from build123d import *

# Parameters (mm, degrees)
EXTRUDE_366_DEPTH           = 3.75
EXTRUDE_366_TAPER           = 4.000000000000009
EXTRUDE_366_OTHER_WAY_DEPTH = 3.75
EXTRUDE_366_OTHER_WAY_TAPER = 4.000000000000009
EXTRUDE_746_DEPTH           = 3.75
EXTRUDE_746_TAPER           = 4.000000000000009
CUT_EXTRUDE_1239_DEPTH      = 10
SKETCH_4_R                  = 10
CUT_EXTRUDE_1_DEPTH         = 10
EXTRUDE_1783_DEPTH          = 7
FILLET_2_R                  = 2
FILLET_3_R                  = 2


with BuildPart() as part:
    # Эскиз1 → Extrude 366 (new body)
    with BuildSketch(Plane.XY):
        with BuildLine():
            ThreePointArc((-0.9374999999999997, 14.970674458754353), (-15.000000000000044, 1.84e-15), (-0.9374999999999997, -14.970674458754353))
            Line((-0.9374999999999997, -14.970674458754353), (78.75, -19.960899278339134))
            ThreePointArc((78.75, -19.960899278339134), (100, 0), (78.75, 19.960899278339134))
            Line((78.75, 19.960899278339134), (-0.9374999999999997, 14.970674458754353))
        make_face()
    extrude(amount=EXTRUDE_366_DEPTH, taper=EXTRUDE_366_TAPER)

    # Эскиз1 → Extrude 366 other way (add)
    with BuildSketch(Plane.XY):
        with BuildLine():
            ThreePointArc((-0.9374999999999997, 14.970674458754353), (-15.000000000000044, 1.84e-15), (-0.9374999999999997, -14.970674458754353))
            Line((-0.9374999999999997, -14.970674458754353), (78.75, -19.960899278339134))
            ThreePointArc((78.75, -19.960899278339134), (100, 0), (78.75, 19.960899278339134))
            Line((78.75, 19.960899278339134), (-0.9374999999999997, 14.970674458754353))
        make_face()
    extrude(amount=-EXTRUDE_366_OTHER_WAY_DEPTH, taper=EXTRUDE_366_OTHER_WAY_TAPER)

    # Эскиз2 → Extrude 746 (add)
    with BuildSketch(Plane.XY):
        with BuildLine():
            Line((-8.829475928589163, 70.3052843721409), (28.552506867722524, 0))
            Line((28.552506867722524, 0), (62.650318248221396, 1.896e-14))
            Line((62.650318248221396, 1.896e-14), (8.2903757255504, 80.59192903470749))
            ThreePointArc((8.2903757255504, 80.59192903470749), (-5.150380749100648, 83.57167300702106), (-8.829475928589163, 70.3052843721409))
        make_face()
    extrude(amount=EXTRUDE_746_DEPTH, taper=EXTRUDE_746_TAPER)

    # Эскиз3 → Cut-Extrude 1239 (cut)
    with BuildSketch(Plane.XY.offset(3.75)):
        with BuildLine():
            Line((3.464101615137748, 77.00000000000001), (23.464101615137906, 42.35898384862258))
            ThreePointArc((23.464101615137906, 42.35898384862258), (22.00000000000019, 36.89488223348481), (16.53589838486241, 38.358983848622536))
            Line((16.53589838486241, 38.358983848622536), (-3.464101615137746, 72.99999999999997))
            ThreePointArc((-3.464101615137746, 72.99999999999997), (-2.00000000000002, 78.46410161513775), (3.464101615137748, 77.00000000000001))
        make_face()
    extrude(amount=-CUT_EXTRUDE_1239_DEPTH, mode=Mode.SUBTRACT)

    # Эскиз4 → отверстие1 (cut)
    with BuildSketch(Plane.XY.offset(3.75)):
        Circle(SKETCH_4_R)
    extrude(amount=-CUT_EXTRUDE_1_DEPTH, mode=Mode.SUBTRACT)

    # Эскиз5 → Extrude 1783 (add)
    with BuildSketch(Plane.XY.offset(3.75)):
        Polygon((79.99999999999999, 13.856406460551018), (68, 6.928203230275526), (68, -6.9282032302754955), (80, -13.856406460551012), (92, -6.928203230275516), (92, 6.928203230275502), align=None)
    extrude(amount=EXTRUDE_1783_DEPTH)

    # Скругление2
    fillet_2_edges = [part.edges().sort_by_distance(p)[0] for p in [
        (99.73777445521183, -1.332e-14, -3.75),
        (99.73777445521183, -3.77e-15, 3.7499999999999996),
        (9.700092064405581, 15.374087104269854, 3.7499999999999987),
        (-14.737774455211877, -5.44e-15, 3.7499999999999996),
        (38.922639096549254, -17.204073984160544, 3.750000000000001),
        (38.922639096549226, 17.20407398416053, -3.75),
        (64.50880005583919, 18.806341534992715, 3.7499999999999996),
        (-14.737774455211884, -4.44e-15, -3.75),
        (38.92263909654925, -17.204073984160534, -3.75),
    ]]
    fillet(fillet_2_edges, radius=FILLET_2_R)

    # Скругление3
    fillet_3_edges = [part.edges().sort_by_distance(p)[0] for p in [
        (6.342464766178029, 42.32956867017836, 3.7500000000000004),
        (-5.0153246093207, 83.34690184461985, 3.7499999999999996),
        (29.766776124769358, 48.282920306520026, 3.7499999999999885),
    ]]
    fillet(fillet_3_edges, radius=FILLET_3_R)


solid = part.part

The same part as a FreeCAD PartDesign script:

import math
import FreeCAD as App
import Part
import Sketcher
from FreeCAD import Vector
Q = App.Units.Quantity


def edges_at(feature, points):
    """Names of the edges that pass closest to the given points."""
    edges = feature.Shape.Edges
    near = lambda p: min(range(len(edges)), key=lambda i: edges[i].distToShape(Part.Vertex(*p))[0])
    return sorted({f"Edge{near(p) + 1}" for p in points})

doc = App.newDocument("Part")
body = doc.addObject("PartDesign::Body", "Body")

sketch1 = body.newObject("Sketcher::SketchObject", "Sketch")
sketch1.AttachmentSupport = (doc.getObject("XY_Plane"), [""])
sketch1.MapMode = "FlatFace"
sketch1.addGeometry([
    Part.ArcOfCircle(Part.Circle(Vector(0, 0, 0), Vector(0, 0, 1), 15), math.radians(94), math.radians(266)),
    Part.LineSegment(Vector(-1, -15, 0), Vector(79, -20, 0)),
    Part.ArcOfCircle(Part.Circle(Vector(80, 0, 0), Vector(0, 0, 1), 20), math.radians(-94), math.radians(94)),
    Part.LineSegment(Vector(79, 20, 0), Vector(-1, 15, 0)),
], False)
sketch1.addConstraint([
    Sketcher.Constraint("Tangent", 0, 2, 1, 1),
    Sketcher.Constraint("Tangent", 1, 2, 2, 1),
    Sketcher.Constraint("Tangent", 2, 2, 3, 1),
    Sketcher.Constraint("Tangent", 3, 2, 0, 1),
    Sketcher.Constraint("Coincident", 0, 3, -1, 1),
    Sketcher.Constraint("PointOnObject", 2, 3, -1),
    Sketcher.Constraint("Radius", 0, 15.0),
    Sketcher.Constraint("Radius", 2, 20.0),
    Sketcher.Constraint("DistanceX", -1, 1, 2, 3, 80.0),
])
pad1 = body.newObject("PartDesign::Pad", "Pad")
pad1.Profile = sketch1
pad1.Length = 3.75
pad1.TaperAngle = -4

sketch2 = body.newObject("Sketcher::SketchObject", "Sketch001")
sketch2.AttachmentSupport = (doc.getObject("XY_Plane"), [""])
sketch2.MapMode = "FlatFace"
sketch2.addGeometry([
    Part.ArcOfCircle(Part.Circle(Vector(0, 0, 0), Vector(0, 0, 1), 15), math.radians(94), math.radians(266)),
    Part.LineSegment(Vector(-1, -15, 0), Vector(79, -20, 0)),
    Part.ArcOfCircle(Part.Circle(Vector(80, 0, 0), Vector(0, 0, 1), 20), math.radians(-94), math.radians(94)),
    Part.LineSegment(Vector(79, 20, 0), Vector(-1, 15, 0)),
], False)
sketch2.addConstraint([
    Sketcher.Constraint("Tangent", 0, 2, 1, 1),
    Sketcher.Constraint("Tangent", 1, 2, 2, 1),
    Sketcher.Constraint("Tangent", 2, 2, 3, 1),
    Sketcher.Constraint("Tangent", 3, 2, 0, 1),
    Sketcher.Constraint("Coincident", 0, 3, -1, 1),
    Sketcher.Constraint("PointOnObject", 2, 3, -1),
    Sketcher.Constraint("Radius", 0, 15.0),
    Sketcher.Constraint("Radius", 2, 20.0),
    Sketcher.Constraint("DistanceX", -1, 1, 2, 3, 80.0),
])
pad2 = body.newObject("PartDesign::Pad", "Pad001")
pad2.Profile = sketch2
pad2.Length = 3.75
pad2.Reversed = True
pad2.TaperAngle = -4

sketch3 = body.newObject("Sketcher::SketchObject", "Sketch002")
sketch3.AttachmentSupport = (doc.getObject("XY_Plane"), [""])
sketch3.MapMode = "FlatFace"
sketch3.addGeometry([
    Part.LineSegment(Vector(-9, 70, 0), Vector(29, 0, 0)),
    Part.LineSegment(Vector(29, 0, 0), Vector(63, 0, 0)),
    Part.LineSegment(Vector(63, 0, 0), Vector(8, 81, 0)),
    Part.ArcOfCircle(Part.Circle(Vector(0, 75, 0), Vector(0, 0, 1), 10), math.radians(34), math.radians(208)),
], False)
sketch3.addConstraint([
    Sketcher.Constraint("Coincident", 0, 2, 1, 1),
    Sketcher.Constraint("Coincident", 1, 2, 2, 1),
    Sketcher.Constraint("Tangent", 2, 2, 3, 1),
    Sketcher.Constraint("Tangent", 3, 2, 0, 1),
    Sketcher.Constraint("Horizontal", 1),
    Sketcher.Constraint("PointOnObject", 3, 3, -2),
    Sketcher.Constraint("PointOnObject", 0, 2, -1),
    Sketcher.Constraint("Radius", 3, 10.0),
    Sketcher.Constraint("Angle", 0, Q("-62 deg")),
    Sketcher.Constraint("Angle", 2, Q("124 deg")),
    Sketcher.Constraint("DistanceY", -1, 1, 3, 3, 75.0),
])
pad3 = body.newObject("PartDesign::Pad", "Pad002")
pad3.Profile = sketch3
pad3.Length = 3.75
pad3.TaperAngle = -4

sketch4 = body.newObject("Sketcher::SketchObject", "Sketch003")
sketch4.AttachmentSupport = (doc.getObject("XY_Plane"), [""])
sketch4.MapMode = "FlatFace"
sketch4.AttachmentOffset = App.Placement(Vector(0, 0, 3.75), App.Rotation())
sketch4.addGeometry([
    Part.LineSegment(Vector(23.5, 42.4, 0), Vector(3.5, 77, 0)),
    Part.ArcOfCircle(Part.Circle(Vector(0, 75, 0), Vector(0, 0, 1), 4), math.radians(30), math.radians(210)),
    Part.LineSegment(Vector(-3.5, 73, 0), Vector(16.5, 38.4, 0)),
    Part.ArcOfCircle(Part.Circle(Vector(20, 40.4, 0), Vector(0, 0, 1), 4), math.radians(-150), math.radians(30)),
], False)
sketch4.addConstraint([
    Sketcher.Constraint("Tangent", 0, 2, 1, 1),
    Sketcher.Constraint("Tangent", 1, 2, 2, 1),
    Sketcher.Constraint("Tangent", 2, 2, 3, 1),
    Sketcher.Constraint("Tangent", 3, 2, 0, 1),
    Sketcher.Constraint("Equal", 1, 3),
    Sketcher.Constraint("PointOnObject", 1, 3, -2),
    Sketcher.Constraint("Radius", 1, 4.0),
    Sketcher.Constraint("Angle", 0, Q("120 deg")),
    Sketcher.Constraint("Distance", 0, 40.0),
    Sketcher.Constraint("DistanceY", -1, 1, 1, 3, 75.0),
])
pocket1 = body.newObject("PartDesign::Pocket", "Pocket")
pocket1.Profile = sketch4
pocket1.Length = 10

sketch5 = body.newObject("Sketcher::SketchObject", "Sketch004")
sketch5.AttachmentSupport = (doc.getObject("XY_Plane"), [""])
sketch5.MapMode = "FlatFace"
sketch5.AttachmentOffset = App.Placement(Vector(0, 0, 3.75), App.Rotation())
sketch5.addGeometry(Part.Circle(Vector(0, 0, 0), Vector(0, 0, 1), 10), False)
sketch5.addConstraint([
    Sketcher.Constraint("Coincident", 0, 3, -1, 1),
    Sketcher.Constraint("Diameter", 0, 20.0),
])
pocket2 = body.newObject("PartDesign::Pocket", "Pocket001")
pocket2.Profile = sketch5
pocket2.Length = 10

sketch6 = body.newObject("Sketcher::SketchObject", "Sketch005")
sketch6.AttachmentSupport = (doc.getObject("XY_Plane"), [""])
sketch6.MapMode = "FlatFace"
sketch6.AttachmentOffset = App.Placement(Vector(0, 0, 3.75), App.Rotation())
sketch6.addGeometry([
    Part.LineSegment(Vector(80, 14, 0), Vector(68, 7, 0)),
    Part.LineSegment(Vector(68, 7, 0), Vector(68, -7, 0)),
    Part.LineSegment(Vector(68, -7, 0), Vector(80, -14, 0)),
    Part.LineSegment(Vector(80, -14, 0), Vector(92, -7, 0)),
    Part.LineSegment(Vector(92, -7, 0), Vector(92, 7, 0)),
    Part.LineSegment(Vector(92, 7, 0), Vector(80, 14, 0)),
], False)
sketch6.addConstraint([
    Sketcher.Constraint("Coincident", 0, 2, 1, 1),
    Sketcher.Constraint("Coincident", 1, 2, 2, 1),
    Sketcher.Constraint("Coincident", 2, 2, 3, 1),
    Sketcher.Constraint("Coincident", 3, 2, 4, 1),
    Sketcher.Constraint("Coincident", 4, 2, 5, 1),
    Sketcher.Constraint("Coincident", 5, 2, 0, 1),
    Sketcher.Constraint("Vertical", 1),
    Sketcher.Constraint("Vertical", 4),
    Sketcher.Constraint("Symmetric", 2, 2, 5, 2, -1),
    Sketcher.Constraint("Parallel", 0, 3),
    Sketcher.Constraint("Parallel", 2, 5),
    Sketcher.Constraint("Horizontal", 1, 2, 3, 2),
    Sketcher.Constraint("Horizontal", 0, 2, 4, 2),
    Sketcher.Constraint("Angle", 0, Q("-150 deg")),
    Sketcher.Constraint("DistanceX", -1, 1, 0, 2, 68.0),
    Sketcher.Constraint("DistanceX", -1, 1, 2, 2, 80.0),
    Sketcher.Constraint("DistanceY", 1, 2, 1, 1, 13.856406),
])
pad4 = body.newObject("PartDesign::Pad", "Pad003")
pad4.Profile = sketch6
pad4.Length = 7
doc.recompute()

fillet = body.newObject("PartDesign::Fillet", "Fillet")
fillet.Base = (pad4, edges_at(pad4, [
    (99.738, 0, -3.75),
    (99.738, 0, 3.75),
    (9.7, 15.374, 3.75),
    (-14.738, 0, 3.75),
    (38.923, -17.204, 3.75),
    (38.923, 17.204, -3.75),
    (64.509, 18.806, 3.75),
    (-14.738, 0, -3.75),
    (38.923, -17.204, -3.75),
]))
fillet.Radius = 2
doc.recompute()

fillet2 = body.newObject("PartDesign::Fillet", "Fillet001")
fillet2.Base = (fillet, edges_at(fillet, [(6.342, 42.33, 3.75), (-5.015, 83.347, 3.75), (29.767, 48.283, 3.75)]))
fillet2.Radius = 2

doc.recompute()
